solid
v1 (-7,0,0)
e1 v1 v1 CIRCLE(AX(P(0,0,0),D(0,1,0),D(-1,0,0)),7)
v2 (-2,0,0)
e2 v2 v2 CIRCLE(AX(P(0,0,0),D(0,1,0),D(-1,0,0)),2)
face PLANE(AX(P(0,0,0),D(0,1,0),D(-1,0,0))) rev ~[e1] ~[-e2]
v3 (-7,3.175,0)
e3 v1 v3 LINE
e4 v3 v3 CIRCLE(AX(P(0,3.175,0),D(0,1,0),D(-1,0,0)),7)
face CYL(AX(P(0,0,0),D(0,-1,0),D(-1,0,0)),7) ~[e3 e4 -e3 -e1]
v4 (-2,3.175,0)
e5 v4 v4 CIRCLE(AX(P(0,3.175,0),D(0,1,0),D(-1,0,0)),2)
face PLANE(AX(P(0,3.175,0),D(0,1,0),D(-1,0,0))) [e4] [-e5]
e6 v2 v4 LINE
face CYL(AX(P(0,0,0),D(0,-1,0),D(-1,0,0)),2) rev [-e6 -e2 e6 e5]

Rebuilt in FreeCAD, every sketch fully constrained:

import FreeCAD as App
import Part
import Sketcher
from FreeCAD import Vector
Q = App.Units.Quantity

doc = App.newDocument("Part")
body = doc.addObject("PartDesign::Body", "Body")

# Sketch on XZ plane
sketch1 = body.newObject("Sketcher::SketchObject", "Sketch")
sketch1.AttachmentSupport = (doc.getObject("XZ_Plane"), [""])
sketch1.MapMode = "FlatFace"
sketch1.addGeometry([
    Part.Circle(Vector(0, 0, 0), Vector(0, 0, 1), 7),
    Part.Circle(Vector(0, 0, 0), Vector(0, 0, 1), 2),
], False)
sketch1.addConstraint([
    Sketcher.Constraint("Coincident", 0, 3, -1, 1),
    Sketcher.Constraint("Coincident", 1, 3, -1, 1),
    Sketcher.Constraint("Diameter", 0, Q("14 mm")),
    Sketcher.Constraint("Diameter", 1, Q("4 mm")),
])
pad1 = body.newObject("PartDesign::Pad", "Pad")
pad1.Profile = sketch1
pad1.Length = 3.175
pad1.Reversed = True

doc.recompute()
